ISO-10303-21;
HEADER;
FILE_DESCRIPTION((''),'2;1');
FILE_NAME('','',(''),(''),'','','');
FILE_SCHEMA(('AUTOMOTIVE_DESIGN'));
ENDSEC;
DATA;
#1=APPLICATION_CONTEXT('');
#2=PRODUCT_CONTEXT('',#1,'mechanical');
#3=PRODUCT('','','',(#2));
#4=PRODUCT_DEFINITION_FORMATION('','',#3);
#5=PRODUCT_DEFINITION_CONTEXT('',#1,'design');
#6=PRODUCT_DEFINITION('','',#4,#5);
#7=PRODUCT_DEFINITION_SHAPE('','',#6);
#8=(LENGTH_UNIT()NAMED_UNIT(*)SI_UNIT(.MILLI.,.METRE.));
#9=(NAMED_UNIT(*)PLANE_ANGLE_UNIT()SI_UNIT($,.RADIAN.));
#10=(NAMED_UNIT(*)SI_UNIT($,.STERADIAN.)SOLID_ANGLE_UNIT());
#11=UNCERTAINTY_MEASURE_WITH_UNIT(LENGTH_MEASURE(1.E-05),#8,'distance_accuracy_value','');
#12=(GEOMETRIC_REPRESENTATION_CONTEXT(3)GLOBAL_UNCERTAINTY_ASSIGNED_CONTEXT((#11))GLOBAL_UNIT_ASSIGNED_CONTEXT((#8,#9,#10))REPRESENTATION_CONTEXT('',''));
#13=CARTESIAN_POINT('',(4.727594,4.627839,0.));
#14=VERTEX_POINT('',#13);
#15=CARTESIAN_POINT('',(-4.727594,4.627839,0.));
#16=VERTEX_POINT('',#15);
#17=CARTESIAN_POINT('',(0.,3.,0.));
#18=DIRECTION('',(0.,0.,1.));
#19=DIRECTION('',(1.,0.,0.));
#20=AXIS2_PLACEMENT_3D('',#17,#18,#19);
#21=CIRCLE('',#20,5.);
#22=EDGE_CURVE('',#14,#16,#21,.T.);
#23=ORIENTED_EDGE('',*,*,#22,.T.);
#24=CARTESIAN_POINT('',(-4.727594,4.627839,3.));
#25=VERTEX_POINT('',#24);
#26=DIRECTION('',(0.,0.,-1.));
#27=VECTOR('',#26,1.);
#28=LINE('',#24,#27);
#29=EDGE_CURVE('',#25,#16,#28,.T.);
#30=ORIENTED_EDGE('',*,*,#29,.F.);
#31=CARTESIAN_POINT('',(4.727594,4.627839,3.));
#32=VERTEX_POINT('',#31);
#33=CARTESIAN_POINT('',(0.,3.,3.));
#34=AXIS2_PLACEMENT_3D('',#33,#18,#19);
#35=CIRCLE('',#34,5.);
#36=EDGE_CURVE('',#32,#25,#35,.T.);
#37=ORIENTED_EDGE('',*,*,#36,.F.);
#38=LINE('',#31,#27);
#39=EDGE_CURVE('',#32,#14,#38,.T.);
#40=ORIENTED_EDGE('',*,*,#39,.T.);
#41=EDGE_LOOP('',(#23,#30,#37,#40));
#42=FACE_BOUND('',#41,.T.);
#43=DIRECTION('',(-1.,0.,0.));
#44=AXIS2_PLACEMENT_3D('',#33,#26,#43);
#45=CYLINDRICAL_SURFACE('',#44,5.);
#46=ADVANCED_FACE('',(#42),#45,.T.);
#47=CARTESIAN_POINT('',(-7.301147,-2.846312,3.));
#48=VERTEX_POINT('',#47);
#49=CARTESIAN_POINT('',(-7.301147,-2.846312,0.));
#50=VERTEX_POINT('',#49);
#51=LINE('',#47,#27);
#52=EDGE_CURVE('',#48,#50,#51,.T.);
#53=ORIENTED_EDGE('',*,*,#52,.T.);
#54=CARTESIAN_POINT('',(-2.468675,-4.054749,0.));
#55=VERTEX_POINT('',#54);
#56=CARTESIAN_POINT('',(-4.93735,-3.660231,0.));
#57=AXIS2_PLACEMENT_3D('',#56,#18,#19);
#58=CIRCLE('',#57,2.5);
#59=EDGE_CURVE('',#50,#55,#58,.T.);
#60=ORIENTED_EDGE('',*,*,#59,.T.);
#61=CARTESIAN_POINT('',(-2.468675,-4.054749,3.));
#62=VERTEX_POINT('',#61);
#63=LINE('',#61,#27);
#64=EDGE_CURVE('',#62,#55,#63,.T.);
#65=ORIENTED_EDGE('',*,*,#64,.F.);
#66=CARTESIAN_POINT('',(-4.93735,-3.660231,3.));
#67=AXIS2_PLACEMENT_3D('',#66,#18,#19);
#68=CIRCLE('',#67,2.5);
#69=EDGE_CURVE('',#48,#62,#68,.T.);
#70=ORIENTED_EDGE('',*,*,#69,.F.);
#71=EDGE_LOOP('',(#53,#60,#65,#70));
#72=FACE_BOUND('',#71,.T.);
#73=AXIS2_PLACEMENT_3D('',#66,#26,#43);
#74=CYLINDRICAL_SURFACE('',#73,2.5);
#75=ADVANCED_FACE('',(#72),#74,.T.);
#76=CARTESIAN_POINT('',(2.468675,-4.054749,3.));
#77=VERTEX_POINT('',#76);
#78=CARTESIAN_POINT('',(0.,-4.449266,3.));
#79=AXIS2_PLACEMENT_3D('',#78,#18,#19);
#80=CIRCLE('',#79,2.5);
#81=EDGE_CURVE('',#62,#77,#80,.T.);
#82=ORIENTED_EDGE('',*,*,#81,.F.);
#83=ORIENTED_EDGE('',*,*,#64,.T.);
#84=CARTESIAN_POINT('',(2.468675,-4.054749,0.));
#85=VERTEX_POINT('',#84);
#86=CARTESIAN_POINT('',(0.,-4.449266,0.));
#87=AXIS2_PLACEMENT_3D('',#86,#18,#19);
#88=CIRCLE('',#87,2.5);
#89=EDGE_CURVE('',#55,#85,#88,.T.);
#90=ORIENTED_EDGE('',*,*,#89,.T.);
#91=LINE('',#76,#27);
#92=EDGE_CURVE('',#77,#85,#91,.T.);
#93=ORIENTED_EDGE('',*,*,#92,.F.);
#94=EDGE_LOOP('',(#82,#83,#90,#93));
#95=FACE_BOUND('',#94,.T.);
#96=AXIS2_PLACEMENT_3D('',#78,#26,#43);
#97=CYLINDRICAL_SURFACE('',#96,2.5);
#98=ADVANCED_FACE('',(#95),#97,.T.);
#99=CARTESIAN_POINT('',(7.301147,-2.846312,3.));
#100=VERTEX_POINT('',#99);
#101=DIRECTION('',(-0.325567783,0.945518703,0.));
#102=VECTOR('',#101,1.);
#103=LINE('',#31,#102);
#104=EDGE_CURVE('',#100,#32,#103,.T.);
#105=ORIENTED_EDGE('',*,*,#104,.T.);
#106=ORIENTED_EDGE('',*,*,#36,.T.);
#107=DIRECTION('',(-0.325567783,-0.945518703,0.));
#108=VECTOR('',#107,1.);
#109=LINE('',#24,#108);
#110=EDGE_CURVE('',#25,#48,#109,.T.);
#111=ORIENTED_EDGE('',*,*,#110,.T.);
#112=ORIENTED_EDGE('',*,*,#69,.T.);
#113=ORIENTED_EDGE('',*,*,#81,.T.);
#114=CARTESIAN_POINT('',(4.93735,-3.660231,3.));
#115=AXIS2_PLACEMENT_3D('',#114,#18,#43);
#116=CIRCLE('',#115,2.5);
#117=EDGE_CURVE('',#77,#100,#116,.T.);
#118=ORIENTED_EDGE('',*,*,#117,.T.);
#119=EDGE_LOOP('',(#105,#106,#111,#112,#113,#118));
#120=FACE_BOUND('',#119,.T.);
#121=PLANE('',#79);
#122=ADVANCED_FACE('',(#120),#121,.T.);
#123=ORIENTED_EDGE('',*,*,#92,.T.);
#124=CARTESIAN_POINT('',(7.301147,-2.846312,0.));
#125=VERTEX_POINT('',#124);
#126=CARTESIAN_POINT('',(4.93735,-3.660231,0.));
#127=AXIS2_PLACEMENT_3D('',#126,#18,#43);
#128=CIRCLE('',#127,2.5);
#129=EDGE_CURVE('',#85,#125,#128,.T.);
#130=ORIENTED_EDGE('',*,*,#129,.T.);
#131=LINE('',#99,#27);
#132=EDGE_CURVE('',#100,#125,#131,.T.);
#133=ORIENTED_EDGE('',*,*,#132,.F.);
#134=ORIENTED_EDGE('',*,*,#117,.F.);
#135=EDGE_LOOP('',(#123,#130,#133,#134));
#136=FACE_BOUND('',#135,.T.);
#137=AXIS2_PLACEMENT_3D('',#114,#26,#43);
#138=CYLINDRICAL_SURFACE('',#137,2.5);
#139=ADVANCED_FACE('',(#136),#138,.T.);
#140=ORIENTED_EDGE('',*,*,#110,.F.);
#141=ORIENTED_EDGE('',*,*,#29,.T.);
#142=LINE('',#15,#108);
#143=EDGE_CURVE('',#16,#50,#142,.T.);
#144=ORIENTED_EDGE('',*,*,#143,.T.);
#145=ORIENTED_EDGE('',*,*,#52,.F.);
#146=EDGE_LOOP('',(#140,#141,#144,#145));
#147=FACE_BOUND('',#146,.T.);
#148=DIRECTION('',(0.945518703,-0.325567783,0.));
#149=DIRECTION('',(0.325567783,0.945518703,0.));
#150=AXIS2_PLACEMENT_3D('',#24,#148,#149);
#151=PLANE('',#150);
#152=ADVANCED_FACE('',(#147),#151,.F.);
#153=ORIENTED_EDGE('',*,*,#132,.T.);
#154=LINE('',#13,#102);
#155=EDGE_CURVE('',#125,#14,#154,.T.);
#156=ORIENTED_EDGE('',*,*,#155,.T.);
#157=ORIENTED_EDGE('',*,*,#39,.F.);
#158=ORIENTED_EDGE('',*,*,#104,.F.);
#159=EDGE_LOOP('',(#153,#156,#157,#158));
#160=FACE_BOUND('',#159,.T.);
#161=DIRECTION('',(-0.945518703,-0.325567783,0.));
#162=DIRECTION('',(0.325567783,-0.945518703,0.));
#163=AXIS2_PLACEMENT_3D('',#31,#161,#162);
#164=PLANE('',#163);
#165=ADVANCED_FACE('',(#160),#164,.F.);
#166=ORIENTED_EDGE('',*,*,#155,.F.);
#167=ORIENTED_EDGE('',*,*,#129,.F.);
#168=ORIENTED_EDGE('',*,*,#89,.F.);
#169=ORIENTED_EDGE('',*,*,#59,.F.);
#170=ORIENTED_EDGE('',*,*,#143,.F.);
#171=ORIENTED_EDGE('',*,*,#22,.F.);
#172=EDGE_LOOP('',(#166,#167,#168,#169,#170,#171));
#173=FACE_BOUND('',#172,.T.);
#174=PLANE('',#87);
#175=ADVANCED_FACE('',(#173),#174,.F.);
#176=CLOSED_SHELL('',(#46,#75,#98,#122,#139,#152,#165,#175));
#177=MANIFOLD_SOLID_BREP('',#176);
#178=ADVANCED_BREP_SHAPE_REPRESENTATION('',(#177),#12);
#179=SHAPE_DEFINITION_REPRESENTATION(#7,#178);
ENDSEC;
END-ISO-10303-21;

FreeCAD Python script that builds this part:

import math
import FreeCAD as App
import Part
import Sketcher
from FreeCAD import Vector

doc = App.newDocument("Part")
body = doc.addObject("PartDesign::Body", "Body")

# Sketch on XY plane
sketch1 = body.newObject("Sketcher::SketchObject", "Sketch")
sketch1.AttachmentSupport = (doc.getObject("XY_Plane"), [""])
sketch1.MapMode = "FlatFace"
sketch1.addGeometry(Part.LineSegment(Vector(-4.727594, 4.627839, 0), Vector(-7.301147, -2.846312, 0)), False)
sketch1.addGeometry(Part.ArcOfCircle(Part.Circle(Vector(-4.93735, -3.660231, 0), Vector(0, 0, 1), 2.5), math.radians(161.000023), math.radians(350.920375)), False)
sketch1.addGeometry(Part.ArcOfCircle(Part.Circle(Vector(0, -4.449266, 0), Vector(0, 0, 1), 2.5), math.radians(170.920375), math.radians(369.079625)), False)
sketch1.addGeometry(Part.ArcOfCircle(Part.Circle(Vector(4.93735, -3.660231, 0), Vector(0, 0, 1), 2.5), math.radians(-170.920375), math.radians(18.999977)), False)
sketch1.addGeometry(Part.LineSegment(Vector(7.301147, -2.846312, 0), Vector(4.727594, 4.627839, 0)), False)
sketch1.addGeometry(Part.ArcOfCircle(Part.Circle(Vector(0, 3, 0), Vector(0, 0, 1), 5), math.radians(18.999978), math.radians(161.000022)), False)
sketch1.addConstraint(Sketcher.Constraint("Tangent", 0, 2, 1, 1))
sketch1.addConstraint(Sketcher.Constraint("Tangent", 1, 2, 2, 1))
sketch1.addConstraint(Sketcher.Constraint("Tangent", 2, 2, 3, 1))
sketch1.addConstraint(Sketcher.Constraint("Tangent", 3, 2, 4, 1))
sketch1.addConstraint(Sketcher.Constraint("Tangent", 4, 2, 5, 1))
sketch1.addConstraint(Sketcher.Constraint("Tangent", 5, 2, 0, 1))
sketch1.addConstraint(Sketcher.Constraint("Equal", 1, 2))
sketch1.addConstraint(Sketcher.Constraint("Equal", 2, 3))
sketch1.addConstraint(Sketcher.Constraint("Symmetric", 1, 3, 3, 3, -2))
sketch1.addConstraint(Sketcher.Constraint("PointOnObject", 5, 3, -2))
sketch1.addConstraint(Sketcher.Constraint("Radius", 5, 5.0))
sketch1.addConstraint(Sketcher.Constraint("Radius", 1, 2.5))
sketch1.addConstraint(Sketcher.Constraint("DistanceY", -1, 1, 5, 3, 3.0))
sketch1.addConstraint(Sketcher.Constraint("DistanceX", 1, 3, 3, 3, 9.8747))
sketch1.addConstraint(Sketcher.Constraint("DistanceY", 1, 3, -1, 1, 3.660231))
pad1 = body.newObject("PartDesign::Pad", "Pad")
pad1.Profile = sketch1
pad1.Length = 3

doc.recompute()
